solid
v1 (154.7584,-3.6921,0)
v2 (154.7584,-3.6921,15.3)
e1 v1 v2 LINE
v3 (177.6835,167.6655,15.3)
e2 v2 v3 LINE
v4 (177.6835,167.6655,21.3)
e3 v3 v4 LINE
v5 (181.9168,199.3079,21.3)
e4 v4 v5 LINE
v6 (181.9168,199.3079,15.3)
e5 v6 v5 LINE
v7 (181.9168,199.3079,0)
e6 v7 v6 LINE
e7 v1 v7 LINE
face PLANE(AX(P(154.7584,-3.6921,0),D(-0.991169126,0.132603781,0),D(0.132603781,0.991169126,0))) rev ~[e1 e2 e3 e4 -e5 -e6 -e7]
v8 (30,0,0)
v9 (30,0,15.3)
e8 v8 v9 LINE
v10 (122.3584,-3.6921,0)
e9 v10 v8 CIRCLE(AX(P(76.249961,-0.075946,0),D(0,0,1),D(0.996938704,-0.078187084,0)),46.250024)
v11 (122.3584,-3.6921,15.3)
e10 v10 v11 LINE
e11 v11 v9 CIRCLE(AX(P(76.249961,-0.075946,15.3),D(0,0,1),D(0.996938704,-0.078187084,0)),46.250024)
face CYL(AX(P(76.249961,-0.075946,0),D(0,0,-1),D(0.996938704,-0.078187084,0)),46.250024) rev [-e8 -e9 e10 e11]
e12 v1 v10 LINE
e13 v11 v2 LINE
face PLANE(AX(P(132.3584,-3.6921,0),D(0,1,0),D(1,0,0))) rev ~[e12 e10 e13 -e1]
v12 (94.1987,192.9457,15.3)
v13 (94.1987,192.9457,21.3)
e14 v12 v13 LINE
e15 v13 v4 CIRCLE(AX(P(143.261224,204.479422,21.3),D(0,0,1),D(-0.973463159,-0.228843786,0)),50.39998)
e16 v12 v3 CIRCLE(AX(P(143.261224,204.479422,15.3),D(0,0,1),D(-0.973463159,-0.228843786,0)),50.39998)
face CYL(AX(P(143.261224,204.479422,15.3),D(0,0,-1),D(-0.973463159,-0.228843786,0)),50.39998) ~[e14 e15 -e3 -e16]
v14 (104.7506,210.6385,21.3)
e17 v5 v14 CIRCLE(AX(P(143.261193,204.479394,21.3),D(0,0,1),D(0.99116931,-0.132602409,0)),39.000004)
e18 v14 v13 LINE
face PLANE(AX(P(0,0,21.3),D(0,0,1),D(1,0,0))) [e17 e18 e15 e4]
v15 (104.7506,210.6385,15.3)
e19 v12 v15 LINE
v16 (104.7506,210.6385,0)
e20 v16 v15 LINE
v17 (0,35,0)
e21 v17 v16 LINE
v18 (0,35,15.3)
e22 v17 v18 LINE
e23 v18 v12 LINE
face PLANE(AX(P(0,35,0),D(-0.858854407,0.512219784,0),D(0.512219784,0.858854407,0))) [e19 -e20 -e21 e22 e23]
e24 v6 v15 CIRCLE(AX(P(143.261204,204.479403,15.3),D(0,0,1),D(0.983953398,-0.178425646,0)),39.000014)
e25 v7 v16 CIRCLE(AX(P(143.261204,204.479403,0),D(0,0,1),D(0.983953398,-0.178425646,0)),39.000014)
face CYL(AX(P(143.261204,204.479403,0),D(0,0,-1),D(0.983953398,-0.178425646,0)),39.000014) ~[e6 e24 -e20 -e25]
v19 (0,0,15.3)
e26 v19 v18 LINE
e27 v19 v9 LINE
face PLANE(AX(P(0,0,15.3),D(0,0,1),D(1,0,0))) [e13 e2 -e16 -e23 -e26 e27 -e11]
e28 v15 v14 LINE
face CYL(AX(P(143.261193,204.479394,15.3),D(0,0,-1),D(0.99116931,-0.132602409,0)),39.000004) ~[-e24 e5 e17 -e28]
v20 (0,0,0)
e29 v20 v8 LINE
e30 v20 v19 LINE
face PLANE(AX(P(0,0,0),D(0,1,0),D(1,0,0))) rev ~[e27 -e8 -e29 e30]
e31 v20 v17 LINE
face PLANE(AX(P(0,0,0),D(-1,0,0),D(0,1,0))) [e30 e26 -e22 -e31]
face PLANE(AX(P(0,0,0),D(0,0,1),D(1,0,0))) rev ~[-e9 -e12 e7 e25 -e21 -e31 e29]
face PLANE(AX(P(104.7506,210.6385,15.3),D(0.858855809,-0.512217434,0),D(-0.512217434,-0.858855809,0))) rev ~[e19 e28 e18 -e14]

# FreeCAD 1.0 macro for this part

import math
import FreeCAD as App
import Part
import Sketcher
Q = App.Units.Quantity

doc = App.newDocument("Part")
body = doc.addObject("PartDesign::Body", "Body")

sketch1 = body.newObject("Sketcher::SketchObject", "Sketch")
sketch1.AttachmentSupport = (doc.getObject("XY_Plane"), [""])
sketch1.MapMode = "FlatFace"
sketch1.addGeometry([
    Part.LineSegment(App.Vector(0, 35, 0), App.Vector(0, 0, 0)),
    Part.LineSegment(App.Vector(0, 0, 0), App.Vector(30, 0, 0)),
    Part.ArcOfCircle(Part.Circle(App.Vector(76.2499, -0.076, 0), App.Vector(0, 0, 1), 46.250081), math.radians(-4.484294), math.radians(179.905849)),
    Part.LineSegment(App.Vector(122.3584, -3.6921, 0), App.Vector(154.7584, -3.6921, 0)),
    Part.LineSegment(App.Vector(154.7584, -3.6921, 0), App.Vector(181.9168, 199.3079, 0)),
    Part.ArcOfCircle(Part.Circle(App.Vector(143.2612, 204.4794, 0), App.Vector(0, 0, 1), 39.000017), math.radians(-7.620011), math.radians(170.913489)),
    Part.LineSegment(App.Vector(104.7506, 210.6385, 0), App.Vector(0, 35, 0)),
], False)
sketch1.addConstraint([
    Sketcher.Constraint("Coincident", 0, 2, 1, 1),
    Sketcher.Constraint("Coincident", 1, 2, 2, 2),
    Sketcher.Constraint("Coincident", 2, 1, 3, 1),
    Sketcher.Constraint("Coincident", 3, 2, 4, 1),
    Sketcher.Constraint("Tangent", 4, 2, 5, 1),
    Sketcher.Constraint("Coincident", 5, 2, 6, 1),
    Sketcher.Constraint("Coincident", 6, 2, 0, 1),
    Sketcher.Constraint("Vertical", 0),
    Sketcher.Constraint("Horizontal", 1),
    Sketcher.Constraint("Horizontal", 3),
    Sketcher.Constraint("Coincident", 0, 2, -1, 1),
    Sketcher.Constraint("Radius", 5, Q("39 mm")),
    Sketcher.Constraint("DistanceX", 1, 1, 1, 2, Q("30 mm")),
    Sketcher.Constraint("DistanceY", 0, 2, 0, 1, Q("35 mm")),
    Sketcher.Constraint("Radius", 2, Q("46.25 mm")),
    Sketcher.Constraint("DistanceX", 3, 1, 3, 2, Q("32.4 mm")),
    Sketcher.Constraint("DistanceY", 3, 2, 4, 2, Q("203 mm")),
    Sketcher.Constraint("Angle", 4, Q("82.38 deg")),
    Sketcher.Constraint("DistanceY", 2, 3, -1, 1, Q("0.076 mm")),
    Sketcher.Constraint("DistanceY", 2, 1, -1, 1, Q("3.692 mm")),
    Sketcher.Constraint("DistanceY", 5, 3, 5, 2, Q("6.159 mm")),
])
pad1 = body.newObject("PartDesign::Pad", "Pad")
pad1.Profile = sketch1
pad1.Length = 15.3

sketch2 = body.newObject("Sketcher::SketchObject", "Sketch001")
sketch2.AttachmentSupport = (doc.getObject("XY_Plane"), [""])
sketch2.MapMode = "FlatFace"
sketch2.AttachmentOffset = App.Placement(App.Vector(0, 0, 15.3), App.Rotation())
sketch2.addGeometry([
    Part.ArcOfCircle(Part.Circle(App.Vector(143.2612, 204.4794, 0), App.Vector(0, 0, 1), 50.399952), math.radians(-166.771008), math.radians(-46.922859)),
    Part.LineSegment(App.Vector(177.683514, 167.665498, 0), App.Vector(181.9168, 199.3079, 0)),
    Part.ArcOfCircle(Part.Circle(App.Vector(143.2612, 204.4794, 0), App.Vector(0, 0, 1), 38.999998), math.radians(-7.620011), math.radians(170.913489)),
    Part.LineSegment(App.Vector(104.7506, 210.6385, 0), App.Vector(94.1987, 192.9457, 0)),
], False)
sketch2.addConstraint([
    Sketcher.Constraint("Coincident", 0, 2, 1, 1),
    Sketcher.Constraint("Tangent", 1, 2, 2, 1),
    Sketcher.Constraint("Coincident", 2, 2, 3, 1),
    Sketcher.Constraint("Coincident", 3, 2, 0, 1),
    Sketcher.Constraint("Coincident", 2, 3, 0, 3),
    Sketcher.Constraint("Radius", 0, Q("50.4 mm")),
    Sketcher.Constraint("Radius", 2, Q("39 mm")),
    Sketcher.Constraint("Angle", 1, Q("82.38 deg")),
    Sketcher.Constraint("DistanceY", -1, 1, 1, 2, Q("199.308 mm")),
    Sketcher.Constraint("DistanceY", 0, 3, 2, 2, Q("6.159 mm")),
    Sketcher.Constraint("DistanceX", 3, 2, 2, 2, Q("10.552 mm")),
    Sketcher.Constraint("DistanceX", -1, 1, 0, 3, Q("143.2612 mm")),
])
pad2 = body.newObject("PartDesign::Pad", "Pad001")
pad2.Profile = sketch2
pad2.Length = 6

doc.recompute()
